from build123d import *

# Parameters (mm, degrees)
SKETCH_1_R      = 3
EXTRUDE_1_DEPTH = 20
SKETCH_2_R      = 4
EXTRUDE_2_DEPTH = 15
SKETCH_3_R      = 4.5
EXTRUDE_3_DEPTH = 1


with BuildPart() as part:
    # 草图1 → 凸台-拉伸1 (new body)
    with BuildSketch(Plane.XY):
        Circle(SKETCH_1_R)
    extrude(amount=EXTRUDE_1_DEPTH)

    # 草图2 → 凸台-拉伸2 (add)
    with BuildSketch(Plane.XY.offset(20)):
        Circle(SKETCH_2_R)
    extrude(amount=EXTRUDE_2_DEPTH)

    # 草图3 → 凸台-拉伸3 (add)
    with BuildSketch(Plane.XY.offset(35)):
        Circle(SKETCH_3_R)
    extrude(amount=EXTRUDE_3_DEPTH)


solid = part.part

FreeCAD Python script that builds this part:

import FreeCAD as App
import Part
import Sketcher

V = App.Vector

doc = App.newDocument("Part")
body = doc.addObject("PartDesign::Body", "Body")

# Sketch on XY plane
sketch1 = body.newObject("Sketcher::SketchObject", "Sketch")
sketch1.AttachmentSupport = (doc.getObject("XY_Plane"), [""])
sketch1.MapMode = "FlatFace"
sketch1.addGeometry(Part.Circle(V(0, 0, 0), V(0, 0, 1), 3), False)
sketch1.addConstraint(Sketcher.Constraint("Coincident", 0, 3, -1, 1))
sketch1.addConstraint(Sketcher.Constraint("Diameter", 0, 6.0))
pad1 = body.newObject("PartDesign::Pad", "Pad")
pad1.Profile = sketch1
pad1.Length = 20

# Sketch on XY plane
sketch2 = body.newObject("Sketcher::SketchObject", "Sketch001")
sketch2.AttachmentSupport = (doc.getObject("XY_Plane"), [""])
sketch2.MapMode = "FlatFace"
sketch2.AttachmentOffset = App.Placement(V(0, 0, 20), App.Rotation())
sketch2.addGeometry(Part.Circle(V(0, 0, 0), V(0, 0, 1), 4), False)
sketch2.addConstraint(Sketcher.Constraint("Coincident", 0, 3, -1, 1))
sketch2.addConstraint(Sketcher.Constraint("Diameter", 0, 8.0))
pad2 = body.newObject("PartDesign::Pad", "Pad001")
pad2.Profile = sketch2
pad2.Length = 15

# Sketch on XY plane
sketch3 = body.newObject("Sketcher::SketchObject", "Sketch002")
sketch3.AttachmentSupport = (doc.getObject("XY_Plane"), [""])
sketch3.MapMode = "FlatFace"
sketch3.AttachmentOffset = App.Placement(V(0, 0, 35), App.Rotation())
sketch3.addGeometry(Part.Circle(V(0, 0, 0), V(0, 0, 1), 4.5), False)
sketch3.addConstraint(Sketcher.Constraint("Coincident", 0, 3, -1, 1))
sketch3.addConstraint(Sketcher.Constraint("Diameter", 0, 9.0))
pad3 = body.newObject("PartDesign::Pad", "Pad002")
pad3.Profile = sketch3
pad3.Length = 1

doc.recompute()
